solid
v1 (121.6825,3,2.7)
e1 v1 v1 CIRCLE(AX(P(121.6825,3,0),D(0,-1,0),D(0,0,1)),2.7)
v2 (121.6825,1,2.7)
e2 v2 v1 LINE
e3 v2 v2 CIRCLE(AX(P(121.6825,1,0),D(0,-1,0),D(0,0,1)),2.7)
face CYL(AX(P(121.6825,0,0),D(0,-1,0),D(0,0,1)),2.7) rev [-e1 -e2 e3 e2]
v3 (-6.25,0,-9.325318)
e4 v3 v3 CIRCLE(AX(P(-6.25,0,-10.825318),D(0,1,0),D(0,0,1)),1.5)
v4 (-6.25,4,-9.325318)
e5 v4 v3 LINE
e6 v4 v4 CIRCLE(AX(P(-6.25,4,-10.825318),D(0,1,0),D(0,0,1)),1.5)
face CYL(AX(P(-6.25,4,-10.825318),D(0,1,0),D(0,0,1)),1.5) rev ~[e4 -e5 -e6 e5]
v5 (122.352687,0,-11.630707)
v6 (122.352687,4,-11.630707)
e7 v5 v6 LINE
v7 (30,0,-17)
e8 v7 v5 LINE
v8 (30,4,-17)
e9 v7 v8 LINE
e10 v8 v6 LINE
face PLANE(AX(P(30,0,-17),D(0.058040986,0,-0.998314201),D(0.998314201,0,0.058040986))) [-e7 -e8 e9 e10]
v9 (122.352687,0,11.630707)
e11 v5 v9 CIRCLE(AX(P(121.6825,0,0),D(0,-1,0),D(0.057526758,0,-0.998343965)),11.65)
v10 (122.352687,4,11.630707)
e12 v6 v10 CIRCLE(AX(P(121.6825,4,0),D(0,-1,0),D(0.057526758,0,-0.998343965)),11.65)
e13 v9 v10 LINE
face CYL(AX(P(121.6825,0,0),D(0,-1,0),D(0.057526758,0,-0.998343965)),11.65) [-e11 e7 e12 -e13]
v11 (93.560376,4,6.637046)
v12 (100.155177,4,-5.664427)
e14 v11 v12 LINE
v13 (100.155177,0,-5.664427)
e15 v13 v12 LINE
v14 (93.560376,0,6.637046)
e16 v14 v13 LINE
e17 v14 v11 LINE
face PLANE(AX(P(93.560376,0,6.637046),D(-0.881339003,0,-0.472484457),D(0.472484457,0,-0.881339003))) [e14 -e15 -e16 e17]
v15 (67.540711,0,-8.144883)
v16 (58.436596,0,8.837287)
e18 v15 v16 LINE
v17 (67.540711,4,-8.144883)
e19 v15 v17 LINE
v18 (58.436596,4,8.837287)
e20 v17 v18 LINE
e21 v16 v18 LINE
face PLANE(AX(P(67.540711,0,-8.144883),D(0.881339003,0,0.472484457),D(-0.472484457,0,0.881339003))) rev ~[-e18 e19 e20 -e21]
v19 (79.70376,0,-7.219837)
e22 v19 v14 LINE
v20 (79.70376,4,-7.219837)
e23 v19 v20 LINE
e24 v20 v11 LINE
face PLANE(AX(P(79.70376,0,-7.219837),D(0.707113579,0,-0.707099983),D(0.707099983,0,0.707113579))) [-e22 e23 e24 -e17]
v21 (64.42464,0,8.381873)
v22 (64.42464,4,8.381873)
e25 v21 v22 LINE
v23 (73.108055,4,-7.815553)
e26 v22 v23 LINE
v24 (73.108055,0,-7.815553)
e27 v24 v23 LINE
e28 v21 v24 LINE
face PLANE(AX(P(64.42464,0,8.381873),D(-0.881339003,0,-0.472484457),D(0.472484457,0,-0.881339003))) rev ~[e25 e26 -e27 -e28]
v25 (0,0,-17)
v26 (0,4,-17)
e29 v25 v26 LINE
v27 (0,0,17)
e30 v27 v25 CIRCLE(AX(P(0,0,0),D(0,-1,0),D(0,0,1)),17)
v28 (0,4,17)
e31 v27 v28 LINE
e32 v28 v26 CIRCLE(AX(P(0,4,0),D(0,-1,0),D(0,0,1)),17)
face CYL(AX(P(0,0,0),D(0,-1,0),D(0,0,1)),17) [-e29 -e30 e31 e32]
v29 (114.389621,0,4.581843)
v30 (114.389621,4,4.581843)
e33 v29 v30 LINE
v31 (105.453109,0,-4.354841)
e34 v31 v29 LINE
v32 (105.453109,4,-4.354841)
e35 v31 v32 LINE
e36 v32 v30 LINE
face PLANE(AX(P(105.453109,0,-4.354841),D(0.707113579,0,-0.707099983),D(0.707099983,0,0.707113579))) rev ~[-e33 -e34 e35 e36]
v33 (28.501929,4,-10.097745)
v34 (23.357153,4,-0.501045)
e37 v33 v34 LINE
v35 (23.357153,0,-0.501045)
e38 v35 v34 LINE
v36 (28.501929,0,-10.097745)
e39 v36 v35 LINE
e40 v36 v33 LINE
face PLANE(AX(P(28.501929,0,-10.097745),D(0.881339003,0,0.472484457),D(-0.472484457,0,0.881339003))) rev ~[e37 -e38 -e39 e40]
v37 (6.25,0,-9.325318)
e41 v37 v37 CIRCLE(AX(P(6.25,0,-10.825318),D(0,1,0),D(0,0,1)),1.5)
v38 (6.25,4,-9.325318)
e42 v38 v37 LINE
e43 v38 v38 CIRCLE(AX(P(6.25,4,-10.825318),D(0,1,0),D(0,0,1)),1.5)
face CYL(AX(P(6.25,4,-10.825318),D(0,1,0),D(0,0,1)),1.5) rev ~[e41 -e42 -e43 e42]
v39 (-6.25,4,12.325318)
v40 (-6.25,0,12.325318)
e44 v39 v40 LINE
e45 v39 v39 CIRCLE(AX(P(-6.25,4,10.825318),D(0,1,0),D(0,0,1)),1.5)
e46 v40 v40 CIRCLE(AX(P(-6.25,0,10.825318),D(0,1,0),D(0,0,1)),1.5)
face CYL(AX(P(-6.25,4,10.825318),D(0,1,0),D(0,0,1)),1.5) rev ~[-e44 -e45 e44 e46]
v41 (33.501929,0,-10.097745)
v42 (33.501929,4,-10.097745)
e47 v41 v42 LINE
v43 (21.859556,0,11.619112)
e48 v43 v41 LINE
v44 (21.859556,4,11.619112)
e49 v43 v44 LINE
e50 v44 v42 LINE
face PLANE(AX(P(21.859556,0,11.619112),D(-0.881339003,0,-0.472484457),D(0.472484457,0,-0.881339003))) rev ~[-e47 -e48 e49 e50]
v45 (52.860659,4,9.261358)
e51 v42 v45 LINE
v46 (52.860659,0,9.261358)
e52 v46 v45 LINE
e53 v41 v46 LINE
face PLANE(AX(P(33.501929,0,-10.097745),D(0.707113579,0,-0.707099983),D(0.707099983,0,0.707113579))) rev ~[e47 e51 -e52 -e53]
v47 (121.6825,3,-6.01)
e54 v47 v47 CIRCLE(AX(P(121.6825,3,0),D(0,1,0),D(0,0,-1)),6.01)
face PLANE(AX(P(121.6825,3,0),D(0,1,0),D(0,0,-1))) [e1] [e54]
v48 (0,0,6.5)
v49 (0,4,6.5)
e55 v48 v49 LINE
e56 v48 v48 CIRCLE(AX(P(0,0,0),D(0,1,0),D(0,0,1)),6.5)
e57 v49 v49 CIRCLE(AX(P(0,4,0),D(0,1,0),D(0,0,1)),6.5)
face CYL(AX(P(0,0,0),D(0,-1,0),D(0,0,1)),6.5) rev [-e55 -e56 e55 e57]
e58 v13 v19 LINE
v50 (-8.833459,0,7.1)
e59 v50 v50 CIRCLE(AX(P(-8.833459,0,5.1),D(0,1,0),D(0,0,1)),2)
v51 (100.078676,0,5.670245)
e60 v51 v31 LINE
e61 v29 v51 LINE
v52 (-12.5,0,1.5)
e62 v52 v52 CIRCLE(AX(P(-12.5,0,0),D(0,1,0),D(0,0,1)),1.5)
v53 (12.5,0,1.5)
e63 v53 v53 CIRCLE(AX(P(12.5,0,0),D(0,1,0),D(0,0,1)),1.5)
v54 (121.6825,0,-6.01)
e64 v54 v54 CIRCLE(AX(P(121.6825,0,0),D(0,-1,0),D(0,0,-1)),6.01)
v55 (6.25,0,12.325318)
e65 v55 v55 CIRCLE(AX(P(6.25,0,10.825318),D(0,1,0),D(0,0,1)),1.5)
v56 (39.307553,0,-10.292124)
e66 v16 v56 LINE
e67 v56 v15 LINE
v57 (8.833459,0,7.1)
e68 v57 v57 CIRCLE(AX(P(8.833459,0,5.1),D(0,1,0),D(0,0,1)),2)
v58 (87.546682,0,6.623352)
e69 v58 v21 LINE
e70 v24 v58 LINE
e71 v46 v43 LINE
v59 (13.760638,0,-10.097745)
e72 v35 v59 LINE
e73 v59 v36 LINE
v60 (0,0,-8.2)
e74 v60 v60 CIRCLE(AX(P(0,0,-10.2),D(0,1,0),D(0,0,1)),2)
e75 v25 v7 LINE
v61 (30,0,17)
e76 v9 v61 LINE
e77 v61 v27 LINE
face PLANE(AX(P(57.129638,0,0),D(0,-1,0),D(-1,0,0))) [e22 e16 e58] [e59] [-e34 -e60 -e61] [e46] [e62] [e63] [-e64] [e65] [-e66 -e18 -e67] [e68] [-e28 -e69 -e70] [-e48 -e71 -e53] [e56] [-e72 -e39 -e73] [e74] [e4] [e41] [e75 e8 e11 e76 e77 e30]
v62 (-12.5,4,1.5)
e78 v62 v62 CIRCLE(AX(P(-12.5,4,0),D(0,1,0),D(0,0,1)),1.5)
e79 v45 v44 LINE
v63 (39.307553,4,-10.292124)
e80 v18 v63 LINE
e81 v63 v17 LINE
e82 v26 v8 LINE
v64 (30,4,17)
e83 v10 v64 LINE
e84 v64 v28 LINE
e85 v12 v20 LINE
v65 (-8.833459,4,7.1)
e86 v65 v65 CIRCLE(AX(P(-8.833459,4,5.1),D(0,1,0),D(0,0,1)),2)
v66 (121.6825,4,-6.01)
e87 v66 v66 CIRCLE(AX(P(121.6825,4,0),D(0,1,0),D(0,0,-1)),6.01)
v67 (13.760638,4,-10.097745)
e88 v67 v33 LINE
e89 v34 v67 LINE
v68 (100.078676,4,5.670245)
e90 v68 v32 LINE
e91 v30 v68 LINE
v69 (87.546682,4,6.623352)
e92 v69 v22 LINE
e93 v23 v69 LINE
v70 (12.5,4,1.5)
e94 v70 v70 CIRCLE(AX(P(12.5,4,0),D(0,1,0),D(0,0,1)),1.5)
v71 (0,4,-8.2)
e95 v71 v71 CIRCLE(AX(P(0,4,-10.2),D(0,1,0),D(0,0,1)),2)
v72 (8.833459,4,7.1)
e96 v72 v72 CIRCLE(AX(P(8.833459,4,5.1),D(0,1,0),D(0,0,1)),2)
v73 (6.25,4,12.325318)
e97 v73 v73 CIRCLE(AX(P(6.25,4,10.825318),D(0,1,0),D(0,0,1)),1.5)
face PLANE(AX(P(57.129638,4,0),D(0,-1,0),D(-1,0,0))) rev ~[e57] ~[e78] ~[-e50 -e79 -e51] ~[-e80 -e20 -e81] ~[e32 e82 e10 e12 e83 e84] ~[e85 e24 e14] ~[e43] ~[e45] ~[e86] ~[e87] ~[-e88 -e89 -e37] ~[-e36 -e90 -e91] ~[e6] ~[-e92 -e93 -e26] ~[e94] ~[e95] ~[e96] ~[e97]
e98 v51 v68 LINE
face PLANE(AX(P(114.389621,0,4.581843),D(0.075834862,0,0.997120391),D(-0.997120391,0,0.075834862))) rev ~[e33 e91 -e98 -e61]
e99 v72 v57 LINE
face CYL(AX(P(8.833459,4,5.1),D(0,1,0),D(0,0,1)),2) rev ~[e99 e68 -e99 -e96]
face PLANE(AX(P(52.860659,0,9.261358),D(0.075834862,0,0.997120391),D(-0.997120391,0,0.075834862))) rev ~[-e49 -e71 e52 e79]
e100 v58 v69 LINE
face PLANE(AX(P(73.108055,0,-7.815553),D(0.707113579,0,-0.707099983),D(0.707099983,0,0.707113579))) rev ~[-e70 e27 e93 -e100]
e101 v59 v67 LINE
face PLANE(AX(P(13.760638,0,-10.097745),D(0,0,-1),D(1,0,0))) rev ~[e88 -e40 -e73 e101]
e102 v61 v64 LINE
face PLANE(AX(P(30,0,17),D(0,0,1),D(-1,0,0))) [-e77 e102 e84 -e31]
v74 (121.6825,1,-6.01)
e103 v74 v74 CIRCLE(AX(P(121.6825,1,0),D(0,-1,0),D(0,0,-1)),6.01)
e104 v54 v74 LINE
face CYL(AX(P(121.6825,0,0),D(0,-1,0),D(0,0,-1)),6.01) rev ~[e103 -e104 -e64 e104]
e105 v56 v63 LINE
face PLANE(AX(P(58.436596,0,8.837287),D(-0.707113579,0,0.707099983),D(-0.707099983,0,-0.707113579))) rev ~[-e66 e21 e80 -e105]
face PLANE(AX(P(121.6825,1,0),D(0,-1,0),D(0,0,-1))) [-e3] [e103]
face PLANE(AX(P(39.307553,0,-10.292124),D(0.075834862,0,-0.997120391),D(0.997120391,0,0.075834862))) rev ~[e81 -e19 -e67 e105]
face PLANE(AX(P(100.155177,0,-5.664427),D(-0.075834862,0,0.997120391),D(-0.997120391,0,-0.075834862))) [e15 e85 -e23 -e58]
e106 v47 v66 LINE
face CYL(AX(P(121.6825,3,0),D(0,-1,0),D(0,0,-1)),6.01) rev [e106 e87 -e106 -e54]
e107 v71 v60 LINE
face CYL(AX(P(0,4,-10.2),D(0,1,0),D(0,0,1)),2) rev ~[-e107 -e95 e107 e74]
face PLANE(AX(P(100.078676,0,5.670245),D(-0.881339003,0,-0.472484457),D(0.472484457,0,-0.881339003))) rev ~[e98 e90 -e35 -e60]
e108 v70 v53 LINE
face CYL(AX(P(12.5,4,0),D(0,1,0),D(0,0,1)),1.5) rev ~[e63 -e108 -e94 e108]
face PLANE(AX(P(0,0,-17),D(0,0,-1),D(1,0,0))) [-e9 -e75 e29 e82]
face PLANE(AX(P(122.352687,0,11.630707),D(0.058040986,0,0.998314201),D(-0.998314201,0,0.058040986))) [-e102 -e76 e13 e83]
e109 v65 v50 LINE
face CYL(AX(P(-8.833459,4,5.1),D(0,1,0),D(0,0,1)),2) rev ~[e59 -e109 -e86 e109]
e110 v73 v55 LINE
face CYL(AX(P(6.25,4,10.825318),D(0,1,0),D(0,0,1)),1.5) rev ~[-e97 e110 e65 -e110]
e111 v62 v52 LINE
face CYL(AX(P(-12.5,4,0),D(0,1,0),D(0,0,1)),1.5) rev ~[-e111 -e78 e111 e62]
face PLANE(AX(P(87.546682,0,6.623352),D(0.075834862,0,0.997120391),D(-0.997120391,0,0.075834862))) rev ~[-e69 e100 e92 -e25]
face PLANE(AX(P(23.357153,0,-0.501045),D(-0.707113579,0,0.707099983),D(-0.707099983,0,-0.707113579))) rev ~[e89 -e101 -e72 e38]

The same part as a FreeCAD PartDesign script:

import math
import FreeCAD as App
import Part
import Sketcher

V = App.Vector

doc = App.newDocument("Part")
body = doc.addObject("PartDesign::Body", "Body")

# Sketch on XZ plane
sketch1 = body.newObject("Sketcher::SketchObject", "Sketch")
sketch1.AttachmentSupport = (doc.getObject("XZ_Plane"), [""])
sketch1.MapMode = "FlatFace"
sketch1.addGeometry([
    Part.LineSegment(V(30, -17, 0), V(0, -17, 0)),  # 0
    Part.ArcOfCircle(Part.Circle(V(0, 0, 0), V(0, 0, 1), 17), math.radians(90), math.radians(270)),  # 1
    Part.LineSegment(V(0, 17, 0), V(30, 17, 0)),  # 2
    Part.LineSegment(V(30, 17, 0), V(122.352687, 11.630707, 0)),  # 3
    Part.ArcOfCircle(Part.Circle(V(121.6825, 0, 0), V(0, 0, 1), 11.65), math.radians(-86.702139), math.radians(86.702139)),  # 4
    Part.LineSegment(V(122.352687, -11.630707, 0), V(30, -17, 0)),  # 5
    Part.LineSegment(V(33.501929, -10.097745, 0), V(52.860659, 9.261358, 0)),  # 6
    Part.LineSegment(V(52.860659, 9.261358, 0), V(21.859556, 11.619112, 0)),  # 7
    Part.LineSegment(V(21.859556, 11.619112, 0), V(33.501929, -10.097745, 0)),  # 8
    Part.Circle(V(121.6825, 0, 0), V(0, 0, 1), 2.7),  # 9
    Part.LineSegment(V(100.078676, 5.670245, 0), V(105.453109, -4.354841, 0)),  # 10
    Part.LineSegment(V(105.453109, -4.354841, 0), V(114.389621, 4.581843, 0)),  # 11
    Part.LineSegment(V(114.389621, 4.581843, 0), V(100.078676, 5.670245, 0)),  # 12
    Part.LineSegment(V(79.70376, -7.219837, 0), V(100.155177, -5.664427, 0)),  # 13
    Part.LineSegment(V(100.155177, -5.664427, 0), V(93.560376, 6.637046, 0)),  # 14
    Part.LineSegment(V(93.560376, 6.637046, 0), V(79.70376, -7.219837, 0)),  # 15
    Part.LineSegment(V(73.108055, -7.815553, 0), V(87.546682, 6.623352, 0)),  # 16
    Part.LineSegment(V(87.546682, 6.623352, 0), V(64.42464, 8.381873, 0)),  # 17
    Part.LineSegment(V(64.42464, 8.381873, 0), V(73.108055, -7.815553, 0)),  # 18
    Part.LineSegment(V(39.307553, -10.292124, 0), V(67.540711, -8.144883, 0)),  # 19
    Part.LineSegment(V(67.540711, -8.144883, 0), V(58.436596, 8.837287, 0)),  # 20
    Part.LineSegment(V(58.436596, 8.837287, 0), V(39.307553, -10.292124, 0)),  # 21
    Part.Circle(V(0, 0, 0), V(0, 0, 1), 6.5),  # 22
    Part.LineSegment(V(13.760638, -10.097745, 0), V(28.501929, -10.097745, 0)),  # 23
    Part.LineSegment(V(28.501929, -10.097745, 0), V(23.357153, -0.501045, 0)),  # 24
    Part.LineSegment(V(23.357153, -0.501045, 0), V(13.760638, -10.097745, 0)),  # 25
], False)
sketch1.addConstraint([
    Sketcher.Constraint("Coincident", 0, 2, 1, 2),
    Sketcher.Constraint("Coincident", 1, 1, 2, 1),
    Sketcher.Constraint("Coincident", 2, 2, 3, 1),
    Sketcher.Constraint("Coincident", 3, 2, 4, 2),
    Sketcher.Constraint("Coincident", 4, 1, 5, 1),
    Sketcher.Constraint("Coincident", 5, 2, 0, 1),
    Sketcher.Constraint("Coincident", 6, 2, 7, 1),
    Sketcher.Constraint("Coincident", 7, 2, 8, 1),
    Sketcher.Constraint("Coincident", 8, 2, 6, 1),
    Sketcher.Constraint("Coincident", 10, 2, 11, 1),
    Sketcher.Constraint("Coincident", 11, 2, 12, 1),
    Sketcher.Constraint("Coincident", 12, 2, 10, 1),
    Sketcher.Constraint("Coincident", 13, 2, 14, 1),
    Sketcher.Constraint("Coincident", 14, 2, 15, 1),
    Sketcher.Constraint("Coincident", 15, 2, 13, 1),
    Sketcher.Constraint("Coincident", 16, 2, 17, 1),
    Sketcher.Constraint("Coincident", 17, 2, 18, 1),
    Sketcher.Constraint("Coincident", 18, 2, 16, 1),
    Sketcher.Constraint("Coincident", 19, 2, 20, 1),
    Sketcher.Constraint("Coincident", 20, 2, 21, 1),
    Sketcher.Constraint("Coincident", 21, 2, 19, 1),
    Sketcher.Constraint("Coincident", 23, 2, 24, 1),
    Sketcher.Constraint("Coincident", 24, 2, 25, 1),
    Sketcher.Constraint("Coincident", 25, 2, 23, 1),
    Sketcher.Constraint("Horizontal", 0),
    Sketcher.Constraint("Horizontal", 2),
    Sketcher.Constraint("Horizontal", 23),
    Sketcher.Constraint("Coincident", 1, 3, -1, 1),
    Sketcher.Constraint("Coincident", 22, 3, -1, 1),
    Sketcher.Constraint("Coincident", 9, 3, 4, 3),
    Sketcher.Constraint("PointOnObject", 4, 3, -1),
    Sketcher.Constraint("PointOnObject", 0, 2, -2),
    Sketcher.Constraint("PointOnObject", 1, 1, -2),
    Sketcher.Constraint("Diameter", 22, 13.0),
    Sketcher.Constraint("Radius", 1, 17.0),
    Sketcher.Constraint("Diameter", 9, 5.4),
    Sketcher.Constraint("DistanceX", 0, 2, 0, 1, 30.0),
    Sketcher.Constraint("DistanceX", 2, 1, 2, 2, 30.0),
    Sketcher.Constraint("Radius", 4, 11.65),
    Sketcher.Constraint("DistanceX", 23, 2, 8, 2, 5.0),
    Sketcher.Constraint("Distance", 16, 20.419499),
    Sketcher.Constraint("Distance", 18, 18.378202),
    Sketcher.Constraint("Distance", 20, 19.268602),
    Sketcher.Constraint("DistanceX", 23, 1, 23, 2, 14.741291),
    Sketcher.Constraint("DistanceX", -1, 1, 4, 3, 121.6825),
    Sketcher.Constraint("DistanceY", 10, 2, 6, 2, 13.616199),
    Sketcher.Constraint("DistanceX", 12, 2, 13, 2, 0.0765),
    Sketcher.Constraint("DistanceX", 14, 2, 12, 2, 6.5183),
    Sketcher.Constraint("DistanceY", 12, 2, 14, 2, 0.966801),
    Sketcher.Constraint("DistanceX", 6, 2, 15, 2, 26.843101),
    Sketcher.Constraint("DistanceY", 18, 2, 14, 2, 14.452599),
    Sketcher.Constraint("DistanceY", 23, 2, 24, 2, 9.5967),
    Sketcher.Constraint("DistanceY", 8, 2, 24, 2, 9.5967),
    Sketcher.Constraint("DistanceX", 24, 2, 21, 2, 15.9504),
    Sketcher.Constraint("Distance", 13, 20.510479),
    Sketcher.Constraint("Distance", 14, 13.957709),
    Sketcher.Constraint("DistanceX", -1, 1, 6, 2, 52.860659),
    Sketcher.Constraint("DistanceY", -1, 1, 6, 2, 9.261358),
    Sketcher.Constraint("DistanceY", -1, 1, 7, 2, 11.619112),
    Sketcher.Constraint("DistanceX", -1, 1, 8, 2, 33.501929),
    Sketcher.Constraint("DistanceX", -1, 1, 10, 2, 105.453109),
    Sketcher.Constraint("DistanceX", -1, 1, 11, 2, 114.389621),
    Sketcher.Constraint("DistanceY", -1, 1, 16, 2, 6.623352),
    Sketcher.Constraint("DistanceX", -1, 1, 17, 2, 64.42464),
    Sketcher.Constraint("DistanceX", -1, 1, 19, 2, 67.540711),
    Sketcher.Constraint("DistanceY", 4, 1, 11, 2, 16.21255),
    Sketcher.Constraint("DistanceX", 12, 2, 3, 2, 22.27401),
    Sketcher.Constraint("DistanceY", 12, 2, 3, 2, 5.960462),
    Sketcher.Constraint("DistanceY", 13, 2, 11, 2, 10.24627),
    Sketcher.Constraint("DistanceY", 15, 2, 13, 2, 1.555409),
    Sketcher.Constraint("DistanceY", 15, 2, 17, 2, 15.601709),
    Sketcher.Constraint("DistanceY", 19, 2, 18, 2, 0.32933),
    Sketcher.Constraint("DistanceY", 20, 2, 6, 2, 0.424072),
    Sketcher.Constraint("DistanceY", 21, 2, 8, 2, 0.19438),
    Sketcher.Constraint("DistanceY", 21, 2, 20, 2, 19.129411),
    Sketcher.Constraint("Distance", 7, 31.090632),
    Sketcher.Constraint("Distance", 19, 28.314693),
])
pad1 = body.newObject("PartDesign::Pad", "Pad")
pad1.Profile = sketch1
pad1.Length = 4
pad1.Reversed = True

# Sketch on XZ plane
sketch2 = body.newObject("Sketcher::SketchObject", "Sketch001")
sketch2.AttachmentSupport = (doc.getObject("XZ_Plane"), [""])
sketch2.MapMode = "FlatFace"
sketch2.AttachmentOffset = App.Placement(V(0, 0, -4), App.Rotation())
sketch2.addGeometry([
    Part.Circle(V(0, -10.2, 0), V(0, 0, 1), 2),  # 0
    Part.Circle(V(8.8, 5.1, 0), V(0, 0, 1), 2),  # 1
    Part.Circle(V(-8.8, 5.1, 0), V(0, 0, 1), 2),  # 2
    Part.Circle(V(-6.2, -10.8, 0), V(0, 0, 1), 1.5),  # 3
    Part.Circle(V(6.2, -10.8, 0), V(0, 0, 1), 1.5),  # 4
    Part.Circle(V(12.5, 0, 0), V(0, 0, 1), 1.5),  # 5
    Part.Circle(V(6.2, 10.8, 0), V(0, 0, 1), 1.5),  # 6
    Part.Circle(V(-6.2, 10.8, 0), V(0, 0, 1), 1.5),  # 7
    Part.Circle(V(-12.5, 0, 0), V(0, 0, 1), 1.5),  # 8
], False)
sketch2.addConstraint([
    Sketcher.Constraint("Equal", 0, 1),
    Sketcher.Constraint("Equal", 1, 2),
    Sketcher.Constraint("Equal", 3, 4),
    Sketcher.Constraint("Equal", 4, 5),
    Sketcher.Constraint("Equal", 5, 6),
    Sketcher.Constraint("Equal", 6, 7),
    Sketcher.Constraint("Equal", 7, 8),
    Sketcher.Constraint("Symmetric", 3, 3, 6, 3, -1, 1),
    Sketcher.Constraint("Symmetric", 4, 3, 7, 3, -1, 1),
    Sketcher.Constraint("Symmetric", 5, 3, 8, 3, -1, 1),
    Sketcher.Constraint("Symmetric", 1, 3, 2, 3, -2),
    Sketcher.Constraint("Symmetric", 3, 3, 4, 3, -2),
    Sketcher.Constraint("PointOnObject", 0, 3, -2),
    Sketcher.Constraint("PointOnObject", 5, 3, -1),
    Sketcher.Constraint("Diameter", 0, 4.0),
    Sketcher.Constraint("Diameter", 3, 3.0),
    Sketcher.Constraint("DistanceY", 0, 3, -1, 1, 10.2),
    Sketcher.Constraint("DistanceY", -1, 1, 1, 3, 5.1),
    Sketcher.Constraint("DistanceX", -1, 1, 5, 3, 12.5),
    Sketcher.Constraint("DistanceX", 3, 3, 4, 3, 12.5),
    Sketcher.Constraint("DistanceX", -1, 1, 1, 3, 8.833459),
    Sketcher.Constraint("DistanceY", 3, 3, -1, 1, 10.825318),
])
pocket1 = body.newObject("PartDesign::Pocket", "Pocket")
pocket1.Profile = sketch2
pocket1.Type = "ThroughAll"
pocket1.Reversed = True

# Sketch on XZ plane
sketch3 = body.newObject("Sketcher::SketchObject", "Sketch002")
sketch3.AttachmentSupport = (doc.getObject("XZ_Plane"), [""])
sketch3.MapMode = "FlatFace"
sketch3.addGeometry(Part.Circle(V(122, 0, 0), V(0, 0, 1), 6), False)
sketch3.addConstraint([
    Sketcher.Constraint("PointOnObject", 0, 3, -1),
    Sketcher.Constraint("Diameter", 0, 12.02),
    Sketcher.Constraint("DistanceX", -1, 1, 0, 3, 121.6825),
])
pocket2 = body.newObject("PartDesign::Pocket", "Pocket001")
pocket2.Profile = sketch3
pocket2.Length = 1

# Sketch on XZ plane
sketch4 = body.newObject("Sketcher::SketchObject", "Sketch003")
sketch4.AttachmentSupport = (doc.getObject("XZ_Plane"), [""])
sketch4.MapMode = "FlatFace"
sketch4.AttachmentOffset = App.Placement(V(0, 0, -3), App.Rotation())
sketch4.addGeometry(Part.Circle(V(122, 0, 0), V(0, 0, 1), 6), False)
sketch4.addConstraint([
    Sketcher.Constraint("PointOnObject", 0, 3, -1),
    Sketcher.Constraint("Diameter", 0, 12.02),
    Sketcher.Constraint("DistanceX", -1, 1, 0, 3, 121.6825),
])
pocket3 = body.newObject("PartDesign::Pocket", "Pocket002")
pocket3.Profile = sketch4
pocket3.Length = 1

doc.recompute()
